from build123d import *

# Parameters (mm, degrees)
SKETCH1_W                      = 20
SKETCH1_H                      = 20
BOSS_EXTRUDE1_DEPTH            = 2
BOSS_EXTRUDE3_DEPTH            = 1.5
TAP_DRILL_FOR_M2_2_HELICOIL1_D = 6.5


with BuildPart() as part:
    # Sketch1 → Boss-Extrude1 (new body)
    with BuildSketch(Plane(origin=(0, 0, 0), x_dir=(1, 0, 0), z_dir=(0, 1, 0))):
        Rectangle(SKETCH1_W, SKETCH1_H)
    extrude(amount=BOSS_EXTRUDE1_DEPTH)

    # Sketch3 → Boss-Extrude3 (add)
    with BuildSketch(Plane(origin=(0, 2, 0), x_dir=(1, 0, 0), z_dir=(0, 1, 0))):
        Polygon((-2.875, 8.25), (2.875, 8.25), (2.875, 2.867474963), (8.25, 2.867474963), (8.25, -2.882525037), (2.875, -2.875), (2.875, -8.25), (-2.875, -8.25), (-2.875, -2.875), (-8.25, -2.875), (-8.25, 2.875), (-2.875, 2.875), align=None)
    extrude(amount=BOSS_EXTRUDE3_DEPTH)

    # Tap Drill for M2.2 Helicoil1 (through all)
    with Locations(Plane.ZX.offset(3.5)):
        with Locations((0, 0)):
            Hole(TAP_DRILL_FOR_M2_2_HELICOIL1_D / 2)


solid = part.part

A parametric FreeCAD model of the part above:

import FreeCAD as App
import Part
import Sketcher

V = App.Vector

doc = App.newDocument("Part")
params = doc.addObject("Spreadsheet::Sheet", "Params")
for row, (alias, value) in enumerate([
    ("sketch1_width", "20 mm"),
    ("pad1_length", "2 mm"),
    ("sketch2_width", "5.75 mm"),
    ("pad2_length", "1.5 mm"),
    ("sketch3_diameter", "6.5 mm"),
    ("hole_diameter", "6.5 mm"),
], start=1):
    params.set(f"A{row}", alias)
    params.set(f"B{row}", "=" + value)
    params.setAlias(f"B{row}", alias)

body = doc.addObject("PartDesign::Body", "Body")

sketch1 = body.newObject("Sketcher::SketchObject", "Sketch")
sketch1.AttachmentSupport = (doc.getObject("XZ_Plane"), [""])
sketch1.MapMode = "FlatFace"
sketch1.addGeometry(Part.LineSegment(V(-10, -10, 0), V(-10, 10, 0)), False)
sketch1.addGeometry(Part.LineSegment(V(-10, 10, 0), V(10, 10, 0)), False)
sketch1.addGeometry(Part.LineSegment(V(10, 10, 0), V(10, -10, 0)), False)
sketch1.addGeometry(Part.LineSegment(V(10, -10, 0), V(-10, -10, 0)), False)
sketch1.addConstraint(Sketcher.Constraint("Coincident", 0, 2, 1, 1))
sketch1.addConstraint(Sketcher.Constraint("Coincident", 1, 2, 2, 1))
sketch1.addConstraint(Sketcher.Constraint("Coincident", 2, 2, 3, 1))
sketch1.addConstraint(Sketcher.Constraint("Coincident", 3, 2, 0, 1))
sketch1.addConstraint(Sketcher.Constraint("Vertical", 0))
sketch1.addConstraint(Sketcher.Constraint("Horizontal", 1))
sketch1.addConstraint(Sketcher.Constraint("Vertical", 2))
sketch1.addConstraint(Sketcher.Constraint("Horizontal", 3))
sketch1.addConstraint(Sketcher.Constraint("Symmetric", 0, 2, 2, 2, -1, 1))
sketch1.addConstraint(Sketcher.Constraint("Equal", 3, 0))
sketch1.addConstraint(Sketcher.Constraint("DistanceX", 1, 1, 1, 2, 20.0))
sketch1.setExpression("Constraints[10]", "Params.sketch1_width")
pad1 = body.newObject("PartDesign::Pad", "Pad")
pad1.Profile = sketch1
pad1.setExpression("Length", "Params.pad1_length")
pad1.Reversed = True

sketch2 = body.newObject("Sketcher::SketchObject", "Sketch001")
sketch2.AttachmentSupport = (doc.getObject("XZ_Plane"), [""])
sketch2.MapMode = "FlatFace"
sketch2.AttachmentOffset = App.Placement(V(0, 0, -2), App.Rotation())
sketch2.addGeometry(Part.LineSegment(V(3, -8, 0), V(-3, -8, 0)), False)
sketch2.addGeometry(Part.LineSegment(V(-3, -8, 0), V(-3, -3, 0)), False)
sketch2.addGeometry(Part.LineSegment(V(-3, -3, 0), V(-8, -3, 0)), False)
sketch2.addGeometry(Part.LineSegment(V(-8, -3, 0), V(-8, 3, 0)), False)
sketch2.addGeometry(Part.LineSegment(V(-8, 3, 0), V(-3, 3, 0)), False)
sketch2.addGeometry(Part.LineSegment(V(-3, 3, 0), V(-3, 8, 0)), False)
sketch2.addGeometry(Part.LineSegment(V(-3, 8, 0), V(3, 8, 0)), False)
sketch2.addGeometry(Part.LineSegment(V(3, 8, 0), V(3, 3, 0)), False)
sketch2.addGeometry(Part.LineSegment(V(3, 3, 0), V(8, 3, 0)), False)
sketch2.addGeometry(Part.LineSegment(V(8, 3, 0), V(8, -3, 0)), False)
sketch2.addGeometry(Part.LineSegment(V(8, -3, 0), V(3, -3, 0)), False)
sketch2.addGeometry(Part.LineSegment(V(3, -3, 0), V(3, -8, 0)), False)
sketch2.addConstraint(Sketcher.Constraint("Coincident", 0, 2, 1, 1))
sketch2.addConstraint(Sketcher.Constraint("Coincident", 1, 2, 2, 1))
sketch2.addConstraint(Sketcher.Constraint("Coincident", 2, 2, 3, 1))
sketch2.addConstraint(Sketcher.Constraint("Coincident", 3, 2, 4, 1))
sketch2.addConstraint(Sketcher.Constraint("Coincident", 4, 2, 5, 1))
sketch2.addConstraint(Sketcher.Constraint("Coincident", 5, 2, 6, 1))
sketch2.addConstraint(Sketcher.Constraint("Coincident", 6, 2, 7, 1))
sketch2.addConstraint(Sketcher.Constraint("Coincident", 7, 2, 8, 1))
sketch2.addConstraint(Sketcher.Constraint("Coincident", 8, 2, 9, 1))
sketch2.addConstraint(Sketcher.Constraint("Coincident", 9, 2, 10, 1))
sketch2.addConstraint(Sketcher.Constraint("Coincident", 10, 2, 11, 1))
sketch2.addConstraint(Sketcher.Constraint("Coincident", 11, 2, 0, 1))
sketch2.addConstraint(Sketcher.Constraint("Horizontal", 0))
sketch2.addConstraint(Sketcher.Constraint("Vertical", 1))
sketch2.addConstraint(Sketcher.Constraint("Horizontal", 2))
sketch2.addConstraint(Sketcher.Constraint("Vertical", 3))
sketch2.addConstraint(Sketcher.Constraint("Horizontal", 4))
sketch2.addConstraint(Sketcher.Constraint("Vertical", 5))
sketch2.addConstraint(Sketcher.Constraint("Horizontal", 6))
sketch2.addConstraint(Sketcher.Constraint("Vertical", 7))
sketch2.addConstraint(Sketcher.Constraint("Vertical", 9))
sketch2.addConstraint(Sketcher.Constraint("Horizontal", 10))
sketch2.addConstraint(Sketcher.Constraint("Vertical", 11))
sketch2.addConstraint(Sketcher.Constraint("Symmetric", 0, 2, 6, 2, -1, 1))
sketch2.addConstraint(Sketcher.Constraint("Symmetric", 4, 2, 7, 2, -2))
sketch2.addConstraint(Sketcher.Constraint("Vertical", 7, 2, 10, 2))
sketch2.addConstraint(Sketcher.Constraint("Equal", 4, 10))
sketch2.addConstraint(Sketcher.Constraint("Equal", 10, 1))
sketch2.addConstraint(Sketcher.Constraint("Equal", 6, 3))
sketch2.addConstraint(Sketcher.Constraint("Equal", 1, 5))
sketch2.addConstraint(Sketcher.Constraint("Equal", 3, 9))
sketch2.addConstraint(Sketcher.Constraint("DistanceX", 0, 2, 0, 1, 5.75))
sketch2.addConstraint(Sketcher.Constraint("DistanceY", 0, 2, 5, 2, 16.5))
sketch2.addConstraint(Sketcher.Constraint("DistanceY", 11, 2, 11, 1, 5.382525))
sketch2.setExpression("Constraints[31]", "Params.sketch2_width")
pad2 = body.newObject("PartDesign::Pad", "Pad001")
pad2.Profile = sketch2
pad2.setExpression("Length", "Params.pad2_length")
pad2.Reversed = True

sketch3 = body.newObject("Sketcher::SketchObject", "Sketch002")
sketch3.AttachmentSupport = (doc.getObject("XZ_Plane"), [""])
sketch3.MapMode = "FlatFace"
sketch3.AttachmentOffset = App.Placement(V(0, 0, -3.5), App.Rotation())
sketch3.addGeometry(Part.Circle(V(0, 0, 0), V(0, 0, 1), 3.2), False)
sketch3.addConstraint(Sketcher.Constraint("Coincident", 0, 3, -1, 1))
sketch3.addConstraint(Sketcher.Constraint("Diameter", 0, 6.5))
sketch3.setExpression("Constraints[1]", "Params.sketch3_diameter")
doc.recompute()
hole = body.newObject("PartDesign::Hole", "Hole")
hole.Profile = sketch3
hole.ThreadType = "None"
hole.setExpression("Diameter", "Params.hole_diameter")
hole.DepthType = "ThroughAll"
hole.Reversed = True

doc.recompute()
